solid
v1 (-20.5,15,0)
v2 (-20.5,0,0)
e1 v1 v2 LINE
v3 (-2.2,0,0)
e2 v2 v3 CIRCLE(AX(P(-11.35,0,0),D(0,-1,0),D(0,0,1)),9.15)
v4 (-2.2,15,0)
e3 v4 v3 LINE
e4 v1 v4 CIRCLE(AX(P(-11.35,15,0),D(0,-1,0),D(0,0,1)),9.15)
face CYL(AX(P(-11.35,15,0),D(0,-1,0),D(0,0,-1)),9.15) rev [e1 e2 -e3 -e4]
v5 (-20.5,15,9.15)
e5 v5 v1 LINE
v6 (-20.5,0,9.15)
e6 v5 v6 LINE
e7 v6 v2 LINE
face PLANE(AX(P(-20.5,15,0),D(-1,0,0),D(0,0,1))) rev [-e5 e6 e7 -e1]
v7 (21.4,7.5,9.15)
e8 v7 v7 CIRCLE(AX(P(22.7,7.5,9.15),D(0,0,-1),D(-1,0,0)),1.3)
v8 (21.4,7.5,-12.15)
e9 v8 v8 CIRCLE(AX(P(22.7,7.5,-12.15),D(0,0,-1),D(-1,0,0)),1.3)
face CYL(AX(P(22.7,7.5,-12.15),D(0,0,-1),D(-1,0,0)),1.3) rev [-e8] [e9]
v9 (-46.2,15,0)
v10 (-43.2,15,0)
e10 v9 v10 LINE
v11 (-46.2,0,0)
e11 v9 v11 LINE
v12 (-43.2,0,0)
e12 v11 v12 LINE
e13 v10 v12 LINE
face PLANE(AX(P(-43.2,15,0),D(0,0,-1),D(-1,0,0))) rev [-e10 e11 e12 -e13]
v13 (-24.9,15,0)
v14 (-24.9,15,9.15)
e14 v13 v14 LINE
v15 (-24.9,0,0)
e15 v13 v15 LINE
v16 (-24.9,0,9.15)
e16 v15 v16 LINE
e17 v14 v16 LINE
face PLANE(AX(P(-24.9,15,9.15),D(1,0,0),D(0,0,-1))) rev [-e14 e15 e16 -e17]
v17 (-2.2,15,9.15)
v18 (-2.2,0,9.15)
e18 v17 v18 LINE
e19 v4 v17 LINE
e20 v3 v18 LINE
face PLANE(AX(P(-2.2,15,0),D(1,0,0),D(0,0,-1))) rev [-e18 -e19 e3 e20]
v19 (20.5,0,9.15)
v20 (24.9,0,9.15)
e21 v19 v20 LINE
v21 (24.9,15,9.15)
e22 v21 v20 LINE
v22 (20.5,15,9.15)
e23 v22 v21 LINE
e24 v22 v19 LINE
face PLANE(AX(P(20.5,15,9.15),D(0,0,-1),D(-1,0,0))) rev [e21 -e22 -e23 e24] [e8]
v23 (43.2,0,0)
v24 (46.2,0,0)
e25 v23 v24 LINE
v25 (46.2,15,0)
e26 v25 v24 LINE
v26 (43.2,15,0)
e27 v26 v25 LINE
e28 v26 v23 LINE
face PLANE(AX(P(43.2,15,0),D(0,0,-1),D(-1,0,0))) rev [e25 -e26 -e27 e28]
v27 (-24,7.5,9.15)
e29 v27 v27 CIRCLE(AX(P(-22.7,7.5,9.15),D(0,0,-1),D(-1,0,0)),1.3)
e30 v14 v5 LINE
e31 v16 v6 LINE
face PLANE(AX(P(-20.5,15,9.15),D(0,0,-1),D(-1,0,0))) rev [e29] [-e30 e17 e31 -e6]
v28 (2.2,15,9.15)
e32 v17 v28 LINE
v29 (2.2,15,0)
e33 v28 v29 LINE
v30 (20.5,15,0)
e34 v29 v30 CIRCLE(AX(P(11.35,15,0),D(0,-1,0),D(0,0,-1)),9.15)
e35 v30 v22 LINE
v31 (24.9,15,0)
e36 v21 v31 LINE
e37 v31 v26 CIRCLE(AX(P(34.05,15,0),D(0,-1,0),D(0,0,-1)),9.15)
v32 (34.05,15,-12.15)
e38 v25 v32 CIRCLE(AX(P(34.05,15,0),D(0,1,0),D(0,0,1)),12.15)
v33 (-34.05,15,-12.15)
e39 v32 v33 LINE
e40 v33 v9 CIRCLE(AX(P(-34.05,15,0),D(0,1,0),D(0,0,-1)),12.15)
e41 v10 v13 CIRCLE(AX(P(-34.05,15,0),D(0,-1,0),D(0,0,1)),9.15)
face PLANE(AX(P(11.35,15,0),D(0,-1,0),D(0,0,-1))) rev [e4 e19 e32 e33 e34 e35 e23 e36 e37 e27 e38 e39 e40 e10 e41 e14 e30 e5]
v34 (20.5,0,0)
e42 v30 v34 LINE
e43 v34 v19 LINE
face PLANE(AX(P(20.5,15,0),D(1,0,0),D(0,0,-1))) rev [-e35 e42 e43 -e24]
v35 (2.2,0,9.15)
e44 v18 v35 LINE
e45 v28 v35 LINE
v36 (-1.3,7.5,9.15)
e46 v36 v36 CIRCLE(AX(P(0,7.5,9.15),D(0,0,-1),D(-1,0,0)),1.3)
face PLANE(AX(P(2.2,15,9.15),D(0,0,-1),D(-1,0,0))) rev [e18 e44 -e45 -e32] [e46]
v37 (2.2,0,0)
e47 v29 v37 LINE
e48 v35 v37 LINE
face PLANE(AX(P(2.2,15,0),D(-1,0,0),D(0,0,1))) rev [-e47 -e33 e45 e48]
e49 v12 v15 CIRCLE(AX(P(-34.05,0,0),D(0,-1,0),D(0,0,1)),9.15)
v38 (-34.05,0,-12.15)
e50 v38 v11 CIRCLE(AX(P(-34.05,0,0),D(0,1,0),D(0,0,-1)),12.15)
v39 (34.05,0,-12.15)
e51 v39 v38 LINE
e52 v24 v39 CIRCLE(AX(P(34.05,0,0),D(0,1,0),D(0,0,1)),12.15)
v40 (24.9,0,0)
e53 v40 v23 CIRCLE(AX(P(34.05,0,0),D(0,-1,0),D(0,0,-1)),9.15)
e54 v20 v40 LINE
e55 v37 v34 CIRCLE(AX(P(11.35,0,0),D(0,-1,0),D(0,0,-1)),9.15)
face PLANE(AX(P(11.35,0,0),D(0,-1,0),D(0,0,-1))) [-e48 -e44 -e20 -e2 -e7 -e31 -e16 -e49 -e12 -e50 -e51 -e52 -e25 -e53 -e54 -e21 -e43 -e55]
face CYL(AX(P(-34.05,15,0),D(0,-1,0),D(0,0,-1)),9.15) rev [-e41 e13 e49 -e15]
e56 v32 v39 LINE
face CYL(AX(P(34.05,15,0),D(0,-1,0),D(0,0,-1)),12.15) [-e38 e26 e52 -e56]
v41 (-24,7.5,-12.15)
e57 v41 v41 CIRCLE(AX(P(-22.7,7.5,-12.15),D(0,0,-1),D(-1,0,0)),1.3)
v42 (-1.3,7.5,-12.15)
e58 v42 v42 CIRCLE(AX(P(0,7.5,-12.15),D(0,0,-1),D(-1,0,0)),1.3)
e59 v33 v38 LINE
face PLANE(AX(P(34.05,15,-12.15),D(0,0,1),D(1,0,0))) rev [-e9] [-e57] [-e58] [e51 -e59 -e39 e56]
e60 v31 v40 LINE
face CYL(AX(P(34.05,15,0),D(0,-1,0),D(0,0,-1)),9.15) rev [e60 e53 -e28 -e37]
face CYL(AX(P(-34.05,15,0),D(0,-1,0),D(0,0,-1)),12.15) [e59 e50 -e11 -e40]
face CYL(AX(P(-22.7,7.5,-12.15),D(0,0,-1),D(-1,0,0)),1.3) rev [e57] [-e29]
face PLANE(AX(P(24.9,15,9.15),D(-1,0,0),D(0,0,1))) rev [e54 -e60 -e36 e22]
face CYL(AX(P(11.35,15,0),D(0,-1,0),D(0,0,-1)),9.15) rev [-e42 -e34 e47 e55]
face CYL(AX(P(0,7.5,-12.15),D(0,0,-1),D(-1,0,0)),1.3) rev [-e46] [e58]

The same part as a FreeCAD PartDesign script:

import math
import FreeCAD as App
import Part
import Sketcher

V = App.Vector
Q = App.Units.Quantity

doc = App.newDocument("Part")
body = doc.addObject("PartDesign::Body", "Body")

# Sketch on XZ plane
sketch1 = body.newObject("Sketcher::SketchObject", "Sketch")
sketch1.AttachmentSupport = (doc.getObject("XZ_Plane"), [""])
sketch1.MapMode = "FlatFace"
sketch1.addGeometry(Part.LineSegment(V(2.2, 9.2, 0), V(2.2, 0, 0)), False)
sketch1.addGeometry(Part.ArcOfCircle(Part.Circle(V(11.3, 0, 0), V(0, 0, 1), 9.2), math.radians(180), math.radians(360)), False)
sketch1.addGeometry(Part.LineSegment(V(20.5, 0, 0), V(20.5, 9.2, 0)), False)
sketch1.addGeometry(Part.LineSegment(V(20.5, 9.2, 0), V(24.9, 9.2, 0)), False)
sketch1.addGeometry(Part.LineSegment(V(24.9, 9.2, 0), V(24.9, 0, 0)), False)
sketch1.addGeometry(Part.ArcOfCircle(Part.Circle(V(34, 0, 0), V(0, 0, 1), 9.2), math.radians(180), math.radians(360)), False)
sketch1.addGeometry(Part.LineSegment(V(43.2, 0, 0), V(46.2, 0, 0)), False)
sketch1.addGeometry(Part.ArcOfCircle(Part.Circle(V(34, 0, 0), V(0, 0, 1), 12.2), math.radians(-90), math.radians(0)), False)
sketch1.addGeometry(Part.LineSegment(V(34, -12.2, 0), V(-34, -12.2, 0)), False)
sketch1.addGeometry(Part.ArcOfCircle(Part.Circle(V(-34, 0, 0), V(0, 0, 1), 12.2), math.radians(-180), math.radians(-90)), False)
sketch1.addGeometry(Part.LineSegment(V(-46.2, 0, 0), V(-43.2, 0, 0)), False)
sketch1.addGeometry(Part.ArcOfCircle(Part.Circle(V(-34, 0, 0), V(0, 0, 1), 9.2), math.radians(180), math.radians(360)), False)
sketch1.addGeometry(Part.LineSegment(V(-24.9, 0, 0), V(-24.9, 9.2, 0)), False)
sketch1.addGeometry(Part.LineSegment(V(-24.9, 9.2, 0), V(-20.5, 9.2, 0)), False)
sketch1.addGeometry(Part.LineSegment(V(-20.5, 9.2, 0), V(-20.5, 0, 0)), False)
sketch1.addGeometry(Part.ArcOfCircle(Part.Circle(V(-11.3, 0, 0), V(0, 0, 1), 9.2), math.radians(180), math.radians(360)), False)
sketch1.addGeometry(Part.LineSegment(V(-2.2, 0, 0), V(-2.2, 9.2, 0)), False)
sketch1.addGeometry(Part.LineSegment(V(-2.2, 9.2, 0), V(2.2, 9.2, 0)), False)
sketch1.addConstraint(Sketcher.Constraint("Tangent", 0, 2, 1, 1))
sketch1.addConstraint(Sketcher.Constraint("Tangent", 1, 2, 2, 1))
sketch1.addConstraint(Sketcher.Constraint("Coincident", 2, 2, 3, 1))
sketch1.addConstraint(Sketcher.Constraint("Coincident", 3, 2, 4, 1))
sketch1.addConstraint(Sketcher.Constraint("Tangent", 4, 2, 5, 1))
sketch1.addConstraint(Sketcher.Constraint("Coincident", 5, 2, 6, 1))
sketch1.addConstraint(Sketcher.Constraint("Coincident", 6, 2, 7, 2))
sketch1.addConstraint(Sketcher.Constraint("Tangent", 7, 1, 8, 1))
sketch1.addConstraint(Sketcher.Constraint("Tangent", 8, 2, 9, 2))
sketch1.addConstraint(Sketcher.Constraint("Coincident", 9, 1, 10, 1))
sketch1.addConstraint(Sketcher.Constraint("Coincident", 10, 2, 11, 1))
sketch1.addConstraint(Sketcher.Constraint("Tangent", 11, 2, 12, 1))
sketch1.addConstraint(Sketcher.Constraint("Coincident", 12, 2, 13, 1))
sketch1.addConstraint(Sketcher.Constraint("Coincident", 13, 2, 14, 1))
sketch1.addConstraint(Sketcher.Constraint("Tangent", 14, 2, 15, 1))
sketch1.addConstraint(Sketcher.Constraint("Tangent", 15, 2, 16, 1))
sketch1.addConstraint(Sketcher.Constraint("Coincident", 16, 2, 17, 1))
sketch1.addConstraint(Sketcher.Constraint("Coincident", 17, 2, 0, 1))
sketch1.addConstraint(Sketcher.Constraint("Vertical", 0))
sketch1.addConstraint(Sketcher.Constraint("Vertical", 2))
sketch1.addConstraint(Sketcher.Constraint("Horizontal", 3))
sketch1.addConstraint(Sketcher.Constraint("Vertical", 4))
sketch1.addConstraint(Sketcher.Constraint("Horizontal", 6))
sketch1.addConstraint(Sketcher.Constraint("Horizontal", 8))
sketch1.addConstraint(Sketcher.Constraint("Horizontal", 10))
sketch1.addConstraint(Sketcher.Constraint("Vertical", 12))
sketch1.addConstraint(Sketcher.Constraint("Horizontal", 13))
sketch1.addConstraint(Sketcher.Constraint("Vertical", 14))
sketch1.addConstraint(Sketcher.Constraint("Vertical", 16))
sketch1.addConstraint(Sketcher.Constraint("Horizontal", 17))
sketch1.addConstraint(Sketcher.Constraint("Coincident", 7, 3, 5, 3))
sketch1.addConstraint(Sketcher.Constraint("Coincident", 11, 3, 9, 3))
sketch1.addConstraint(Sketcher.Constraint("Equal", 1, 5))
sketch1.addConstraint(Sketcher.Constraint("Equal", 7, 9))
sketch1.addConstraint(Sketcher.Constraint("Equal", 5, 11))
sketch1.addConstraint(Sketcher.Constraint("Equal", 11, 15))
sketch1.addConstraint(Sketcher.Constraint("Symmetric", 5, 3, 9, 3, -1, 1))
sketch1.addConstraint(Sketcher.Constraint("Symmetric", 1, 3, 15, 3, -1, 1))
sketch1.addConstraint(Sketcher.Constraint("PointOnObject", 1, 3, -1))
sketch1.addConstraint(Sketcher.Constraint("PointOnObject", 5, 2, -1))
sketch1.addConstraint(Sketcher.Constraint("PointOnObject", 9, 1, -1))
sketch1.addConstraint(Sketcher.Constraint("Horizontal", 3, 2, 12, 2))
sketch1.addConstraint(Sketcher.Constraint("Horizontal", 13, 2, 16, 2))
sketch1.addConstraint(Sketcher.Constraint("Equal", 13, 17))
sketch1.addConstraint(Sketcher.Constraint("DistanceX", 6, 1, 6, 2, Q("3 mm")))
sketch1.addConstraint(Sketcher.Constraint("Radius", 1, Q("9.15 mm")))
sketch1.addConstraint(Sketcher.Constraint("DistanceX", 3, 1, 3, 2, Q("4.4 mm")))
sketch1.addConstraint(Sketcher.Constraint("DistanceY", 0, 2, 0, 1, Q("9.15 mm")))
pad1 = body.newObject("PartDesign::Pad", "Pad")
pad1.Profile = sketch1
pad1.Length = 15
pad1.Reversed = True

# Sketch on XY plane
sketch2 = body.newObject("Sketcher::SketchObject", "Sketch001")
sketch2.AttachmentSupport = (doc.getObject("XY_Plane"), [""])
sketch2.MapMode = "FlatFace"
sketch2.AttachmentOffset = App.Placement(V(0, 0, -12.15), App.Rotation())
sketch2.addGeometry(Part.Circle(V(0, 7.5, 0), V(0, 0, 1), 1.3), False)
sketch2.addGeometry(Part.Circle(V(22.7, 7.5, 0), V(0, 0, 1), 1.3), False)
sketch2.addGeometry(Part.Circle(V(-22.7, 7.5, 0), V(0, 0, 1), 1.3), False)
sketch2.addConstraint(Sketcher.Constraint("Equal", 0, 1))
sketch2.addConstraint(Sketcher.Constraint("Equal", 1, 2))
sketch2.addConstraint(Sketcher.Constraint("Symmetric", 1, 3, 2, 3, -2))
sketch2.addConstraint(Sketcher.Constraint("PointOnObject", 0, 3, -2))
sketch2.addConstraint(Sketcher.Constraint("Horizontal", 0, 3, 1, 3))
sketch2.addConstraint(Sketcher.Constraint("Diameter", 0, Q("2.6 mm")))
sketch2.addConstraint(Sketcher.Constraint("DistanceY", -1, 1, 0, 3, Q("7.5 mm")))
sketch2.addConstraint(Sketcher.Constraint("DistanceX", -1, 1, 1, 3, Q("22.7 mm")))
doc.recompute()
hole = body.newObject("PartDesign::Hole", "Hole")
hole.Profile = sketch2
hole.ThreadType = "None"
hole.Diameter = 2.6
hole.DepthType = "ThroughAll"
hole.Reversed = True

doc.recompute()
